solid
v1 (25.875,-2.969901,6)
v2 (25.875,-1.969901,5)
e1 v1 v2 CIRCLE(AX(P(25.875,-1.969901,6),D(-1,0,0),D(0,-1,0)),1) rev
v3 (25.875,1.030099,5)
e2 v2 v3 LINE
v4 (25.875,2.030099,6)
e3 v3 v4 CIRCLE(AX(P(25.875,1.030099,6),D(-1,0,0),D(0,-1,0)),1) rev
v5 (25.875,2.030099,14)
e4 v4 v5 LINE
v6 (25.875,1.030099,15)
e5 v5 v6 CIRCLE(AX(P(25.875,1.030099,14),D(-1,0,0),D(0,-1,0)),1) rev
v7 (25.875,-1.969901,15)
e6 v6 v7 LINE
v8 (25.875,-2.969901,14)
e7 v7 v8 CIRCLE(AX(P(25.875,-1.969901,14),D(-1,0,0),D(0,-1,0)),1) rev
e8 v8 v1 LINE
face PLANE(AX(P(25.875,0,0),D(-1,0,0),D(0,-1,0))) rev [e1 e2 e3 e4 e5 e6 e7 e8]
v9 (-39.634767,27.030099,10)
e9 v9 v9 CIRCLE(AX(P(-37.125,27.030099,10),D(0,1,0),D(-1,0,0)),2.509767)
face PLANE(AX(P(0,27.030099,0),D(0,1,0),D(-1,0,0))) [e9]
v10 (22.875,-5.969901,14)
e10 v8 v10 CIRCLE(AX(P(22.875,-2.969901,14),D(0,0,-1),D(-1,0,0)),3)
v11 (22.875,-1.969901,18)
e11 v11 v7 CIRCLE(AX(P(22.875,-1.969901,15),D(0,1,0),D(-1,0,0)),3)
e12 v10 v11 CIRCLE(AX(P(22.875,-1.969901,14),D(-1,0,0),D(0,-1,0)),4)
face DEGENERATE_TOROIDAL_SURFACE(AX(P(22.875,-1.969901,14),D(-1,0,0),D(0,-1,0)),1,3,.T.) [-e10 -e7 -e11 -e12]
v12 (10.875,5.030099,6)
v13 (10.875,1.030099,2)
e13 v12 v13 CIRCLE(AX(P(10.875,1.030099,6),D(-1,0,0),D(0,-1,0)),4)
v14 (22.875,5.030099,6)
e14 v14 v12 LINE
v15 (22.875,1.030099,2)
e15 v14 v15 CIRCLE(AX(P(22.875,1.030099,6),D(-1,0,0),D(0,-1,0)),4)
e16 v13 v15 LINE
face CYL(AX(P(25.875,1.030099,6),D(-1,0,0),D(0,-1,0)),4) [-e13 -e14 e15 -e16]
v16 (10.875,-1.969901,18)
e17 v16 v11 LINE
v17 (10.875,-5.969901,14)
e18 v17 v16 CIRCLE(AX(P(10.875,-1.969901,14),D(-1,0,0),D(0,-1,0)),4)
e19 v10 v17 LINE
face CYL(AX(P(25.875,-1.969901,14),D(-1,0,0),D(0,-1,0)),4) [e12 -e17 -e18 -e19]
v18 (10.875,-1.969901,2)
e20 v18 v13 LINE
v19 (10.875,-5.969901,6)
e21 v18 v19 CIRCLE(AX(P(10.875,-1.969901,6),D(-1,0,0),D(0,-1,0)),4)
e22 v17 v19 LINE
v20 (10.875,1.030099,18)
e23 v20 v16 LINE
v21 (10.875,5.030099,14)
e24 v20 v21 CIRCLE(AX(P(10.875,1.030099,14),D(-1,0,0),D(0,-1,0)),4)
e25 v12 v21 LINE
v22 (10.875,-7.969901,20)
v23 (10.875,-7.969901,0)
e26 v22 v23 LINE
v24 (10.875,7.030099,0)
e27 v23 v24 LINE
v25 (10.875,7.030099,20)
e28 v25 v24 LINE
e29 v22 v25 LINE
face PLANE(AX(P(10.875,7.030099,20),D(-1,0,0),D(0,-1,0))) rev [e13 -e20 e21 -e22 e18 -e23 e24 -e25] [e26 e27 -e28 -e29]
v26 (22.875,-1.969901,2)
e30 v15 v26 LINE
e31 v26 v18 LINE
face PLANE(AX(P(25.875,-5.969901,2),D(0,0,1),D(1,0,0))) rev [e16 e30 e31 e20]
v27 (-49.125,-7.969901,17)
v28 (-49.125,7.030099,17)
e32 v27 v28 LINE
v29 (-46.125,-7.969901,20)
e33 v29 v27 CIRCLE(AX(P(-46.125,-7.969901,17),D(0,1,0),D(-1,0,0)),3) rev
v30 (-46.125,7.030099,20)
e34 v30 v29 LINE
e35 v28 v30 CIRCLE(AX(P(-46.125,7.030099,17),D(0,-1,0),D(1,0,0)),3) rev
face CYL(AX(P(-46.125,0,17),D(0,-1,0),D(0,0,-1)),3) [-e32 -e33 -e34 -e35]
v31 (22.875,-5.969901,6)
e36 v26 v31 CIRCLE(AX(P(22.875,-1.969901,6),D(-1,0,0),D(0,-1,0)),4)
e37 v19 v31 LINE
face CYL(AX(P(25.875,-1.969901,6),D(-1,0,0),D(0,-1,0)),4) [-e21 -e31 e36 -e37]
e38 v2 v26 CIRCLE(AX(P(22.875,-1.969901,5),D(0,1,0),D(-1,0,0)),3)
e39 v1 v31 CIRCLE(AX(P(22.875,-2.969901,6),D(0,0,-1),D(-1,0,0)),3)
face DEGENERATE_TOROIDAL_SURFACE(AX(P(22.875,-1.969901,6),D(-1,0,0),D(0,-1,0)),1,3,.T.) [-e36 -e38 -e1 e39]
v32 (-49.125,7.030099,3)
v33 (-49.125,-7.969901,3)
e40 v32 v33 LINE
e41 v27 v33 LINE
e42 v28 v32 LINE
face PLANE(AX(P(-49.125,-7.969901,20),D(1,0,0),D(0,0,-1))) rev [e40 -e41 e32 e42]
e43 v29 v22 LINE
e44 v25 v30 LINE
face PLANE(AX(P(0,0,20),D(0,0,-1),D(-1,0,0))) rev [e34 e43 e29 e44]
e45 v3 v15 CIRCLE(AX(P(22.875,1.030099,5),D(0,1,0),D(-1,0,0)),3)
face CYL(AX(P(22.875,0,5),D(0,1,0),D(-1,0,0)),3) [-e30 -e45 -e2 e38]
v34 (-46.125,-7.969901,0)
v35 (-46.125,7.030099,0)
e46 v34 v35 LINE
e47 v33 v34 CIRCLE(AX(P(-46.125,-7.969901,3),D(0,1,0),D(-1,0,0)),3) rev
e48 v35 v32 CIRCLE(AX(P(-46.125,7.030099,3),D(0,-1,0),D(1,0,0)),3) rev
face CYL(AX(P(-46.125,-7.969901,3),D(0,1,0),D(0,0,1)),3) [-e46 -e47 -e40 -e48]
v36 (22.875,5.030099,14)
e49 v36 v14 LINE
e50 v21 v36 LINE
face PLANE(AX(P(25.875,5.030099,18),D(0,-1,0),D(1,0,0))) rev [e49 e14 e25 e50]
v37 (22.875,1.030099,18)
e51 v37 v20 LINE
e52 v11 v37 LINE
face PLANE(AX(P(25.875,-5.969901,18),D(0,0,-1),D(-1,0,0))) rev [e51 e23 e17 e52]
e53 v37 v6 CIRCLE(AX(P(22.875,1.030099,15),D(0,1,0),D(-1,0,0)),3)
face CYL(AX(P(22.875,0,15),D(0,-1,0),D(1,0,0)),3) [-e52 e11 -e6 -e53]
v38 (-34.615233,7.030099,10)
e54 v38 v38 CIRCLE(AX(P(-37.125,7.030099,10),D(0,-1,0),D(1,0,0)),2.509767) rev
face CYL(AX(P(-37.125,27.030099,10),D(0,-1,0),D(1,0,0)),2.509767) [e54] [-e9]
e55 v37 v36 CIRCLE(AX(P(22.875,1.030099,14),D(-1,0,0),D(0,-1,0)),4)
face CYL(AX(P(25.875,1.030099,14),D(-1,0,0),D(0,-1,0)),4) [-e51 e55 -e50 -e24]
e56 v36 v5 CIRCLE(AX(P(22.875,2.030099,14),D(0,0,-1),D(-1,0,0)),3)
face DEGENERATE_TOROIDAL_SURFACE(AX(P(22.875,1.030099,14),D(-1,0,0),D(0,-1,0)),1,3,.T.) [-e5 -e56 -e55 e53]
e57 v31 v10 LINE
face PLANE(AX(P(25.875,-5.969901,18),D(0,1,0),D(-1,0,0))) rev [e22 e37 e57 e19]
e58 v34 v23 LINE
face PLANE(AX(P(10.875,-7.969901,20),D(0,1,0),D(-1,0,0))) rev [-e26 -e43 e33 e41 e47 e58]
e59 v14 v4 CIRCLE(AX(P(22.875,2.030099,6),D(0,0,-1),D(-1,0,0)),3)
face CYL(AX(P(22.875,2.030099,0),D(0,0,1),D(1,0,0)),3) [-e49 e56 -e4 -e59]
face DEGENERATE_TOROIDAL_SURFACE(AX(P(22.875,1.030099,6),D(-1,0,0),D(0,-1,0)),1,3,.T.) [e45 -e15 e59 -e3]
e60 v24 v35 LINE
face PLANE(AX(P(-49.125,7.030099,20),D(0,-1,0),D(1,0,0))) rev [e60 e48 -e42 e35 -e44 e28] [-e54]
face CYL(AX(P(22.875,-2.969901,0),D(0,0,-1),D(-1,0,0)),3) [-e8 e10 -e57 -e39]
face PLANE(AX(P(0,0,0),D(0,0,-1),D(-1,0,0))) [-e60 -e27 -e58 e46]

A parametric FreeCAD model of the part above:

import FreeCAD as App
import Part
import Sketcher
Q = App.Units.Quantity


def edges_at(feature, points):
    """Names of the edges that pass closest to the given points."""
    edges = feature.Shape.Edges
    near = lambda p: min(range(len(edges)), key=lambda i: edges[i].distToShape(Part.Vertex(*p))[0])
    return sorted({f"Edge{near(p) + 1}" for p in points})


def add_polygon(sketch, points):
    """Adds a closed chain of lines whose ends are joined by coincident constraints."""
    first, n = sketch.GeometryCount, len(points)
    for a, b in zip(points, points[1:] + points[:1]):
        sketch.addGeometry(Part.LineSegment(App.Vector(*a, 0), App.Vector(*b, 0)), False)
    for i in range(n):
        sketch.addConstraint(Sketcher.Constraint("Coincident", first + i, 2, first + (i + 1) % n, 1))

doc = App.newDocument("Part")
body = doc.addObject("PartDesign::Body", "Body")

# Sketch on XY plane
sketch1 = doc.addObject("Sketcher::SketchObject", "Sketch")
body.addObject(sketch1)
sketch1.AttachmentSupport = (doc.XY_Plane, [""])
sketch1.MapMode = "FlatFace"
add_polygon(sketch1, [(-49.125, 7.030099), (-49.125, -7.969901), (10.875, -7.969901), (10.875, 7.030099)])  # lines 0-3
sketch1.addConstraint([
    Sketcher.Constraint("Vertical", 0),
    Sketcher.Constraint("Horizontal", 1),
    Sketcher.Constraint("Vertical", 2),
    Sketcher.Constraint("Horizontal", 3),
    Sketcher.Constraint("DistanceX", 1, 1, 1, 2, Q("60 mm")),
    Sketcher.Constraint("DistanceY", 0, 2, 0, 1, Q("15 mm")),
    Sketcher.Constraint("DistanceX", 0, 2, -1, 1, Q("49.125 mm")),
    Sketcher.Constraint("DistanceY", 0, 2, -1, 1, Q("7.969901 mm")),
])
pad1 = doc.addObject("PartDesign::Pad", "Pad")
body.addObject(pad1)
pad1.Profile = sketch1
pad1.Length = 20

# Sketch on XZ plane
sketch2 = doc.addObject("Sketcher::SketchObject", "Sketch001")
body.addObject(sketch2)
sketch2.AttachmentSupport = (doc.XZ_Plane, [""])
sketch2.MapMode = "FlatFace"
sketch2.AttachmentOffset = App.Placement(App.Vector(0, 0, -7.030099), App.Rotation())
sketch2.addGeometry(Part.Circle(App.Vector(-37.125, 10, 0), App.Vector(0, 0, 1), 2.509767), False)
sketch2.addConstraint([
    Sketcher.Constraint("DistanceY", -1, 1, 0, 3, Q("10 mm")),
    Sketcher.Constraint("Diameter", 0, Q("5.019534 mm")),
    Sketcher.Constraint("DistanceX", 0, 3, -1, 1, Q("37.125 mm")),
])
pad2 = doc.addObject("PartDesign::Pad", "Pad001")
body.addObject(pad2)
pad2.Profile = sketch2
pad2.Length = 20
pad2.Reversed = True

# Sketch on YZ plane
sketch3 = doc.addObject("Sketcher::SketchObject", "Sketch002")
body.addObject(sketch3)
sketch3.AttachmentSupport = (doc.YZ_Plane, [""])
sketch3.MapMode = "FlatFace"
sketch3.AttachmentOffset = App.Placement(App.Vector(0, 0, 10.875), App.Rotation())
add_polygon(sketch3, [(5.030099, 18), (-5.969901, 18), (-5.969901, 2), (5.030099, 2)])  # lines 0-3
sketch3.addConstraint([
    Sketcher.Constraint("Horizontal", 0),
    Sketcher.Constraint("Vertical", 1),
    Sketcher.Constraint("Horizontal", 2),
    Sketcher.Constraint("Vertical", 3),
    Sketcher.Constraint("DistanceX", 0, 2, 0, 1, Q("11 mm")),
    Sketcher.Constraint("DistanceY", 1, 2, 1, 1, Q("16 mm")),
    Sketcher.Constraint("DistanceY", -1, 1, 0, 2, Q("18 mm")),
    Sketcher.Constraint("DistanceX", 0, 2, -1, 1, Q("5.969901 mm")),
])
pad3 = doc.addObject("PartDesign::Pad", "Pad002")
body.addObject(pad3)
pad3.Profile = sketch3
pad3.Length = 15
doc.recompute()

fillet = doc.addObject("PartDesign::Fillet", "Fillet")
body.addObject(fillet)
fillet.Base = (pad3, edges_at(pad3, [(18.375, 5.03, 2)]))
fillet.Radius = 4
doc.recompute()

fillet2 = doc.addObject("PartDesign::Fillet", "Fillet001")
body.addObject(fillet2)
fillet2.Base = (fillet, edges_at(fillet, [(18.375, 5.03, 18)]))
fillet2.Radius = 4
doc.recompute()

fillet3 = doc.addObject("PartDesign::Fillet", "Fillet002")
body.addObject(fillet3)
fillet3.Base = (fillet2, edges_at(fillet2, [(18.375, -5.97, 2), (18.375, -5.97, 18)]))
fillet3.Radius = 4
doc.recompute()

fillet4 = doc.addObject("PartDesign::Fillet", "Fillet003")
body.addObject(fillet4)
fillet4.Base = (fillet3, edges_at(fillet3, [
    (25.875, 5.03, 10),
    (25.875, 3.859, 3.172),
    (25.875, -0.47, 18),
    (25.875, 3.859, 16.828),
    (25.875, -5.97, 10),
    (25.875, -0.47, 2),
    (25.875, -4.798, 3.172),
    (25.875, -4.798, 16.828),
]))
fillet4.Radius = 3
doc.recompute()

fillet5 = doc.addObject("PartDesign::Fillet", "Fillet004")
body.addObject(fillet5)
fillet5.Base = (fillet4, edges_at(fillet4, [(-49.125, -0.47, 20), (-49.125, -0.47, 0)]))
fillet5.Radius = 3

doc.recompute()
